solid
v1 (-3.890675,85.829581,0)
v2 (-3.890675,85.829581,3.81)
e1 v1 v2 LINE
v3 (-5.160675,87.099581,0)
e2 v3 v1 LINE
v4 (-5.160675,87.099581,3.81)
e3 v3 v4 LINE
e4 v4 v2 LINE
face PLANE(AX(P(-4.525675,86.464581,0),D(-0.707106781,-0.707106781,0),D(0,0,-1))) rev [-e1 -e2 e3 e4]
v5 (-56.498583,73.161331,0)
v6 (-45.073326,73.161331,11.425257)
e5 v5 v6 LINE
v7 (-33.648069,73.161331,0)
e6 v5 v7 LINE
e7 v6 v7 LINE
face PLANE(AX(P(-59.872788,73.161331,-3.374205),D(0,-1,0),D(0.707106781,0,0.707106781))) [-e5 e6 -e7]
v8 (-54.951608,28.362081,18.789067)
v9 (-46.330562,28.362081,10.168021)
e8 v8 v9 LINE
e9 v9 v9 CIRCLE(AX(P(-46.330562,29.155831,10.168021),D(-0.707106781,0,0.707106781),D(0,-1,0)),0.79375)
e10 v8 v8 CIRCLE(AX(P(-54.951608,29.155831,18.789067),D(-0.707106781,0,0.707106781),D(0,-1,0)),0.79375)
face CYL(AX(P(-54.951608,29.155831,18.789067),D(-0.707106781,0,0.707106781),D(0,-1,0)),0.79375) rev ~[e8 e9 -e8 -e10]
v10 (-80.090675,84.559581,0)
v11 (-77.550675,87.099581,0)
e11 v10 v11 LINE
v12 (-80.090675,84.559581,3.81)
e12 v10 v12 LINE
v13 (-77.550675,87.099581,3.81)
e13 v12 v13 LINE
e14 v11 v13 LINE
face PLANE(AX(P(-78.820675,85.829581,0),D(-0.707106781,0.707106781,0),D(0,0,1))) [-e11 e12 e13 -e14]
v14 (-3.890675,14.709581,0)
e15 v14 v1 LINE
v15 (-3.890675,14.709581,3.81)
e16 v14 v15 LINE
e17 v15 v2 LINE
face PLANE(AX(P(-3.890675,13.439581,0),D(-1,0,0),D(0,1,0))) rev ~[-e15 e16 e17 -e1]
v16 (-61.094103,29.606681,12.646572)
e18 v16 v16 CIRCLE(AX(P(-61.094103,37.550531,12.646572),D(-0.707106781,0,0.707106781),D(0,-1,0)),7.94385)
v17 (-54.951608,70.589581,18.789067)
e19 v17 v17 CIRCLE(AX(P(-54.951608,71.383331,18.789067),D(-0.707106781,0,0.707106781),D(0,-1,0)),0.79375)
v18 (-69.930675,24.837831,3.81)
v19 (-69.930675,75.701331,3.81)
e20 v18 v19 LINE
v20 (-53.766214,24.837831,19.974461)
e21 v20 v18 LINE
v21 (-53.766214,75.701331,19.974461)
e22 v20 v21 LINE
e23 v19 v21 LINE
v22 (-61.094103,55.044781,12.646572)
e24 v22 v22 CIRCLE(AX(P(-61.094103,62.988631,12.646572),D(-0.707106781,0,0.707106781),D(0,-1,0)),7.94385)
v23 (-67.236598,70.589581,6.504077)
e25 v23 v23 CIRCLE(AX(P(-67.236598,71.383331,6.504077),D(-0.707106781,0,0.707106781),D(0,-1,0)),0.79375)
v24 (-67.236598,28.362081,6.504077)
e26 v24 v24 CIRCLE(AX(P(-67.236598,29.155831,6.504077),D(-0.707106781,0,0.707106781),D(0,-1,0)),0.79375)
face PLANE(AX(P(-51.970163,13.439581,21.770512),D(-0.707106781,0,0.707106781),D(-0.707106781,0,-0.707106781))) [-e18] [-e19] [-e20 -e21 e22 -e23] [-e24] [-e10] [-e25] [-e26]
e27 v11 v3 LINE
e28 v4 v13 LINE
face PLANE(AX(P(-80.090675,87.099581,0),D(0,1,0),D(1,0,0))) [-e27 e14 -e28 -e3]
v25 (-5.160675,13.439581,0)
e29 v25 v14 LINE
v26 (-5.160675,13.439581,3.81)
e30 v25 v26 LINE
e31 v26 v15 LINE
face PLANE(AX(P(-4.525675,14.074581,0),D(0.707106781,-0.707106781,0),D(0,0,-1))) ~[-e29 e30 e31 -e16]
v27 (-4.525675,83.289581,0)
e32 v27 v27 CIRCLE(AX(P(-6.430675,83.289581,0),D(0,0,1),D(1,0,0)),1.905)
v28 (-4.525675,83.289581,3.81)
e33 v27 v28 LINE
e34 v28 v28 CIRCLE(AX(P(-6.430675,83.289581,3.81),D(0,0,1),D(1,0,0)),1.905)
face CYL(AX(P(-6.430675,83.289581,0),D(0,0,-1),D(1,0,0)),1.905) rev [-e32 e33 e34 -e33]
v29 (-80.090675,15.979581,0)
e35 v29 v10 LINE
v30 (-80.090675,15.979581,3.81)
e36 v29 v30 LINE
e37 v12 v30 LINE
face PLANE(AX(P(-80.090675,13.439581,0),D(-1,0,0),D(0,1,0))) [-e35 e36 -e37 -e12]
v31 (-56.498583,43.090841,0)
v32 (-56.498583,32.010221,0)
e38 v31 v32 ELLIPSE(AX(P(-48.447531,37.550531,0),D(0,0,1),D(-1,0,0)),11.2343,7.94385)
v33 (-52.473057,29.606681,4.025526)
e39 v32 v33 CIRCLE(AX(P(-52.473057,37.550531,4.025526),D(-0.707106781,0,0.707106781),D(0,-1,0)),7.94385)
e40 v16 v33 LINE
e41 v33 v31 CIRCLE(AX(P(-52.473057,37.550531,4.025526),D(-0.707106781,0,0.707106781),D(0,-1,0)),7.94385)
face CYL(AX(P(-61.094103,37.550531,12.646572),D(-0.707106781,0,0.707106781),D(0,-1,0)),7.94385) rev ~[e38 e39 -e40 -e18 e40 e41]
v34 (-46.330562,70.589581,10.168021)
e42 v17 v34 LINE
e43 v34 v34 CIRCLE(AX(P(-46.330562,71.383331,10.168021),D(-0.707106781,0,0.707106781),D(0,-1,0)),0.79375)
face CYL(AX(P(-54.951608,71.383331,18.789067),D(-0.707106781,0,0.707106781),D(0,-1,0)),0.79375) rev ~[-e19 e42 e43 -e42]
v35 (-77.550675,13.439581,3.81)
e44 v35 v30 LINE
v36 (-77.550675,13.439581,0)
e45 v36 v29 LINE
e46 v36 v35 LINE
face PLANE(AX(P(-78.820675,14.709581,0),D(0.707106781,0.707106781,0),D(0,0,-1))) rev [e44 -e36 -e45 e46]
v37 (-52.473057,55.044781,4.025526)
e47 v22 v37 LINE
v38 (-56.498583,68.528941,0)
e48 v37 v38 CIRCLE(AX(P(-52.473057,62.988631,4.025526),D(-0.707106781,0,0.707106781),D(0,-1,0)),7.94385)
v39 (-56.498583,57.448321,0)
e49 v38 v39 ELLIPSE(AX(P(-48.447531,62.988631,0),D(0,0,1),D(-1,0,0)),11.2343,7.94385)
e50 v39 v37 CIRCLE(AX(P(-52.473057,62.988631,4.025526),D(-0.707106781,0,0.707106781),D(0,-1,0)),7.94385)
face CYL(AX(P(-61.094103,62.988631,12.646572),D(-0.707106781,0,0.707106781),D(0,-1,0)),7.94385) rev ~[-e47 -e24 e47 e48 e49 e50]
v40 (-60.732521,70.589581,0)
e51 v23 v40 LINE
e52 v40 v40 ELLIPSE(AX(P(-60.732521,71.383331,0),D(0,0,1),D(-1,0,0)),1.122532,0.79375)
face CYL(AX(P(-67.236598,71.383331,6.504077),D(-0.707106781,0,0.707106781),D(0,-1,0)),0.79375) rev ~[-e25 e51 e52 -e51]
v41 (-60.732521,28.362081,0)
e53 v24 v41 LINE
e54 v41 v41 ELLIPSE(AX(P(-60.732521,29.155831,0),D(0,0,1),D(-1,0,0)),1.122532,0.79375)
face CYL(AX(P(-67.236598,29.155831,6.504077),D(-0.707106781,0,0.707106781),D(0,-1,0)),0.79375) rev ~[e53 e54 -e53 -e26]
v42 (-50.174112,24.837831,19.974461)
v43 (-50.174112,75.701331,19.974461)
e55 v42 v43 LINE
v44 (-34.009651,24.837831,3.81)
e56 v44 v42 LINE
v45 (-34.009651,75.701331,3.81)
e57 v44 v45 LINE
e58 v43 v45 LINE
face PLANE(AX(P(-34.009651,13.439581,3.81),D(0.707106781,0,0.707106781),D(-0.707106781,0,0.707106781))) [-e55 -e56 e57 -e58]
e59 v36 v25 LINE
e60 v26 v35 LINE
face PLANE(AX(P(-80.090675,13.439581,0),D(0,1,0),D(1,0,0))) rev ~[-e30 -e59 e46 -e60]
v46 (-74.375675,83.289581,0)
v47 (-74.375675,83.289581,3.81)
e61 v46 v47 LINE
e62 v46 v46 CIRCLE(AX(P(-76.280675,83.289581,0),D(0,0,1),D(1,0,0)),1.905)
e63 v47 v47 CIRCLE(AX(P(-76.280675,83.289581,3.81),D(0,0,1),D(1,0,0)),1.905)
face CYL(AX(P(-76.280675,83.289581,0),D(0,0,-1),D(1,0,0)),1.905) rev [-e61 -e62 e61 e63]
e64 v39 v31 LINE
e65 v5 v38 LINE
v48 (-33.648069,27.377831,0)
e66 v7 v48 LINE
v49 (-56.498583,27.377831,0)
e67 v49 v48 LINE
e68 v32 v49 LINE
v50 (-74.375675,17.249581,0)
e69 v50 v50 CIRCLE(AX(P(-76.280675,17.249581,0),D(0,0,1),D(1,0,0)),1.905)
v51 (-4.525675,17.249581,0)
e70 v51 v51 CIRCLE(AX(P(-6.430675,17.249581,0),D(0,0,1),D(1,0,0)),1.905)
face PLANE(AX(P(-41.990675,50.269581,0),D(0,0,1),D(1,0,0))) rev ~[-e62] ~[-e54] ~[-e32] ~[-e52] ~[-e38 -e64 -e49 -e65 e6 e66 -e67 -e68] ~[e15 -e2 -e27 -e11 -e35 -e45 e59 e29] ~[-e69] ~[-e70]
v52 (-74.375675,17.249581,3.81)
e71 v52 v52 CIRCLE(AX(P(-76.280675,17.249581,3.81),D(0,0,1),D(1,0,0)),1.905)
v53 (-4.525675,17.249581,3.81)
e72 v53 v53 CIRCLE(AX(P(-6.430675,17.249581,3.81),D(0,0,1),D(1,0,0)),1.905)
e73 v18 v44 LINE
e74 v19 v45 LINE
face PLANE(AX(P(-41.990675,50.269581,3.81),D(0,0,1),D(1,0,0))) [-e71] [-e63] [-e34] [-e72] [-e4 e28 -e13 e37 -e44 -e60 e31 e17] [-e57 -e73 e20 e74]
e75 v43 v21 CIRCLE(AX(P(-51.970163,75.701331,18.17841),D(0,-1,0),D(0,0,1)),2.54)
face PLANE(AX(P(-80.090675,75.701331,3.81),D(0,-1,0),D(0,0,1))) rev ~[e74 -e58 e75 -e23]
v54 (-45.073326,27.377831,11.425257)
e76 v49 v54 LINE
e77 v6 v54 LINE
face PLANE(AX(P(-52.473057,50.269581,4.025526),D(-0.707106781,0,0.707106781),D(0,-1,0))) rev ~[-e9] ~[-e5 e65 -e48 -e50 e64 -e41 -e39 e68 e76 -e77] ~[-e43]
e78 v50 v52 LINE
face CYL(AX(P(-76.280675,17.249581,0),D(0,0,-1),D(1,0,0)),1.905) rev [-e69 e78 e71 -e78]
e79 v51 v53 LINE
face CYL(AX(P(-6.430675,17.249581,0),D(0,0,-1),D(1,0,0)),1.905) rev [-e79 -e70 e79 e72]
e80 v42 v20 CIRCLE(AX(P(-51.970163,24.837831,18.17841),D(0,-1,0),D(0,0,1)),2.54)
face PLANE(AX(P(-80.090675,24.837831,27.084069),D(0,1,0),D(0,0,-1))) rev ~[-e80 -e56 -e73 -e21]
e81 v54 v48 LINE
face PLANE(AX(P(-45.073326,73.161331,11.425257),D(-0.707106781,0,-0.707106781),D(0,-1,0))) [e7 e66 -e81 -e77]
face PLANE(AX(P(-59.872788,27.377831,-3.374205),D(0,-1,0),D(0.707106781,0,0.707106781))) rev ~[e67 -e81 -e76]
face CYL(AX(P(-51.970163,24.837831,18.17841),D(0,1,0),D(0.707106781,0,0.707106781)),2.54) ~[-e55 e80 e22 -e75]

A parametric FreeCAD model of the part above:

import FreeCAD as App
import Part
import Sketcher
Q = App.Units.Quantity


def edges_at(feature, points):
    """Names of the edges that pass closest to the given points."""
    edges = feature.Shape.Edges
    near = lambda p: min(range(len(edges)), key=lambda i: edges[i].distToShape(Part.Vertex(*p))[0])
    return sorted({f"Edge{near(p) + 1}" for p in points})

doc = App.newDocument("Part")
params = doc.addObject("Spreadsheet::Sheet", "Params")
for row, (alias, value) in enumerate([
    ("sketch1_diameter", "0.15 in"),
    ("sketch1_width", "3 in"),
    ("sketch1_height", "2.9 in"),
    ("pad1_length", "0.15 in"),
    ("chamfer_size", "0.05 in"),
    ("chamfer2_size", "0.1 in"),
    ("sketch2_length", "1 in"),
    ("pad2_length", "2.9 in"),
    ("sketch3_diameter", "0.0625 in"),
    ("sketch4_height", "0.824 in"),
    ("pocket2_length", "1 in"),
    ("fillet_radius", "0.1 in"),
], start=1):
    params.set(f"A{row}", alias)
    params.set(f"B{row}", "=" + value)
    params.setAlias(f"B{row}", alias)

body = doc.addObject("PartDesign::Body", "Body")

# Sketch on XY plane
sketch1 = body.newObject("Sketcher::SketchObject", "Sketch")
sketch1.AttachmentSupport = (doc.getObject("XY_Plane"), [""])
sketch1.MapMode = "FlatFace"
sketch1.addGeometry([
    Part.LineSegment(App.Vector(-80.090675, 87.099581, 0), App.Vector(-80.090675, 13.439581, 0)),  # 0
    Part.LineSegment(App.Vector(-80.090675, 13.439581, 0), App.Vector(-3.890675, 13.439581, 0)),  # 1
    Part.LineSegment(App.Vector(-3.890675, 13.439581, 0), App.Vector(-3.890675, 87.099581, 0)),  # 2
    Part.LineSegment(App.Vector(-3.890675, 87.099581, 0), App.Vector(-80.090675, 87.099581, 0)),  # 3
    Part.Circle(App.Vector(-76.280675, 17.249581, 0), App.Vector(0, 0, 1), 1.905),  # 4
    Part.Circle(App.Vector(-6.430675, 17.249581, 0), App.Vector(0, 0, 1), 1.905),  # 5
    Part.Circle(App.Vector(-76.280675, 83.289581, 0), App.Vector(0, 0, 1), 1.905),  # 6
    Part.Circle(App.Vector(-6.430675, 83.289581, 0), App.Vector(0, 0, 1), 1.905),  # 7
], False)
sketch1.addConstraint([
    Sketcher.Constraint("Coincident", 0, 2, 1, 1),
    Sketcher.Constraint("Coincident", 1, 2, 2, 1),
    Sketcher.Constraint("Coincident", 2, 2, 3, 1),
    Sketcher.Constraint("Coincident", 3, 2, 0, 1),
    Sketcher.Constraint("Vertical", 0),
    Sketcher.Constraint("Horizontal", 1),
    Sketcher.Constraint("Vertical", 2),
    Sketcher.Constraint("Horizontal", 3),
    Sketcher.Constraint("Equal", 4, 5),
    Sketcher.Constraint("Equal", 5, 6),
    Sketcher.Constraint("Equal", 6, 7),
    Sketcher.Constraint("Horizontal", 4, 3, 5, 3),
    Sketcher.Constraint("Horizontal", 6, 3, 7, 3),
    Sketcher.Constraint("Vertical", 4, 3, 6, 3),
    Sketcher.Constraint("Vertical", 5, 3, 7, 3),
    Sketcher.Constraint("Diameter", 4, Q("0.15 in")),
    Sketcher.Constraint("DistanceX", 1, 1, 1, 2, Q("3 in")),
    Sketcher.Constraint("DistanceY", 0, 2, 0, 1, Q("2.9 in")),
    Sketcher.Constraint("DistanceY", 4, 3, 6, 3, Q("2.6 in")),
    Sketcher.Constraint("DistanceX", 0, 2, 5, 3, Q("2.9 in")),
    Sketcher.Constraint("DistanceX", 4, 3, 5, 3, Q("2.75 in")),
    Sketcher.Constraint("DistanceY", 0, 2, 4, 3, Q("0.15 in")),
    Sketcher.Constraint("DistanceY", -1, 1, 4, 3, Q("17.249581 mm")),
    Sketcher.Constraint("DistanceX", 4, 3, -1, 1, Q("76.280675 mm")),
])
sketch1.setExpression("Constraints[15]", "Params.sketch1_diameter")
sketch1.setExpression("Constraints[16]", "Params.sketch1_width")
sketch1.setExpression("Constraints[17]", "Params.sketch1_height")
pad1 = body.newObject("PartDesign::Pad", "Pad")
pad1.Profile = sketch1
pad1.setExpression("Length", "Params.pad1_length")
doc.recompute()

chamfer = body.newObject("PartDesign::Chamfer", "Chamfer")
chamfer.Base = (pad1, edges_at(pad1, [(-3.891, 13.44, 1.905), (-3.891, 87.1, 1.905)]))
chamfer.setExpression("Size", "Params.chamfer_size")
doc.recompute()

chamfer2 = body.newObject("PartDesign::Chamfer", "Chamfer001")
chamfer2.Base = (chamfer, edges_at(chamfer, [(-80.091, 13.44, 1.905), (-80.091, 87.1, 1.905)]))
chamfer2.setExpression("Size", "Params.chamfer2_size")

# Sketch on XZ plane
sketch2 = body.newObject("Sketcher::SketchObject", "Sketch001")
sketch2.AttachmentSupport = (doc.getObject("XZ_Plane"), [""])
sketch2.MapMode = "FlatFace"
sketch2.AttachmentOffset = App.Placement(App.Vector(0, 0, -13.439581), App.Rotation())
sketch2.addGeometry([
    Part.LineSegment(App.Vector(-51.970163, 21.770512, 0), App.Vector(-69.930675, 3.81, 0)),
    Part.LineSegment(App.Vector(-69.930675, 3.81, 0), App.Vector(-34.009651, 3.81, 0)),
    Part.LineSegment(App.Vector(-34.009651, 3.81, 0), App.Vector(-51.970163, 21.770512, 0)),
], False)
sketch2.addConstraint([
    Sketcher.Constraint("Coincident", 0, 2, 1, 1),
    Sketcher.Constraint("Coincident", 1, 2, 2, 1),
    Sketcher.Constraint("Coincident", 2, 2, 0, 1),
    Sketcher.Constraint("Horizontal", 1),
    Sketcher.Constraint("Perpendicular", 0, 2),
    Sketcher.Constraint("Equal", 0, 2),
    Sketcher.Constraint("Distance", 0, Q("1 in")),
    Sketcher.Constraint("DistanceY", -1, 1, 0, 2, Q("0.15 in")),
    Sketcher.Constraint("DistanceX", 1, 2, -1, 1, Q("34.009651 mm")),
])
sketch2.setExpression("Constraints[6]", "Params.sketch2_length")
pad2 = body.newObject("PartDesign::Pad", "Pad001")
pad2.Profile = sketch2
pad2.setExpression("Length", "Params.pad2_length")
pad2.Reversed = True

# Sketch on an angled plane
sketch3 = body.newObject("Sketcher::SketchObject", "Sketch002")
sketch3.Placement = App.Placement(App.Vector(-36.870338, 0, 36.870338), App.Rotation(App.Vector(0, -1, 0), App.Vector(0.707106781, 0, 0.707106781), App.Vector(-0.707106781, 0, 0.707106781), "ZXY"))
sketch3.addGeometry([
    Part.Circle(App.Vector(-62.988631, -34.257578, 0), App.Vector(0, 0, 1), 7.94385),  # 0
    Part.Circle(App.Vector(-37.550531, -34.257578, 0), App.Vector(0, 0, 1), 7.94385),  # 1
    Part.Circle(App.Vector(-29.155831, -25.570778, 0), App.Vector(0, 0, 1), 0.79375),  # 2
    Part.Circle(App.Vector(-29.155831, -42.944378, 0), App.Vector(0, 0, 1), 0.79375),  # 3
    Part.Circle(App.Vector(-71.383331, -42.944378, 0), App.Vector(0, 0, 1), 0.79375),  # 4
    Part.Circle(App.Vector(-71.383331, -25.570778, 0), App.Vector(0, 0, 1), 0.79375),  # 5
], False)
sketch3.addConstraint([
    Sketcher.Constraint("Equal", 0, 1),
    Sketcher.Constraint("Equal", 2, 3),
    Sketcher.Constraint("Equal", 3, 4),
    Sketcher.Constraint("Equal", 4, 5),
    Sketcher.Constraint("Horizontal", 0, 3, 1, 3),
    Sketcher.Constraint("Horizontal", 3, 3, 4, 3),
    Sketcher.Constraint("Horizontal", 2, 3, 5, 3),
    Sketcher.Constraint("Vertical", 2, 3, 3, 3),
    Sketcher.Constraint("Vertical", 4, 3, 5, 3),
    Sketcher.Constraint("Diameter", 2, Q("0.0625 in")),
    Sketcher.Constraint("Diameter", 0, Q("0.6255 in")),
    Sketcher.Constraint("DistanceY", 1, 3, 2, 3, Q("0.342 in")),
    Sketcher.Constraint("DistanceX", 0, 3, 2, 3, Q("1.332 in")),
    Sketcher.Constraint("DistanceY", 3, 3, 1, 3, Q("0.342 in")),
    Sketcher.Constraint("DistanceX", 4, 3, 1, 3, Q("1.332 in")),
    Sketcher.Constraint("DistanceX", 0, 3, 1, 3, Q("1.0015 in")),
    Sketcher.Constraint("DistanceX", 0, 3, -1, 1, Q("62.988631 mm")),
    Sketcher.Constraint("DistanceY", 0, 3, -1, 1, Q("34.257578 mm")),
])
sketch3.setExpression("Constraints[9]", "Params.sketch3_diameter")
pocket1 = body.newObject("PartDesign::Pocket", "Pocket")
pocket1.Profile = sketch3
pocket1.Type = "ThroughAll"

# Sketch on an angled plane
sketch4 = body.newObject("Sketcher::SketchObject", "Sketch003")
sketch4.Placement = App.Placement(App.Vector(-28.249292, 0, 28.249292), App.Rotation(App.Vector(0, -1, 0), App.Vector(0.707106781, 0, 0.707106781), App.Vector(-0.707106781, 0, 0.707106781), "ZXY"))
sketch4.addGeometry([
    Part.LineSegment(App.Vector(-73.161331, -23.792778, 0), App.Vector(-73.161331, -44.722378, 0)),
    Part.LineSegment(App.Vector(-73.161331, -44.722378, 0), App.Vector(-27.377831, -44.722378, 0)),
    Part.LineSegment(App.Vector(-27.377831, -44.722378, 0), App.Vector(-27.377831, -23.792778, 0)),
    Part.LineSegment(App.Vector(-27.377831, -23.792778, 0), App.Vector(-73.161331, -23.792778, 0)),
], False)
sketch4.addConstraint([
    Sketcher.Constraint("Coincident", 0, 2, 1, 1),
    Sketcher.Constraint("Coincident", 1, 2, 2, 1),
    Sketcher.Constraint("Coincident", 2, 2, 3, 1),
    Sketcher.Constraint("Coincident", 3, 2, 0, 1),
    Sketcher.Constraint("Vertical", 0),
    Sketcher.Constraint("Horizontal", 1),
    Sketcher.Constraint("Vertical", 2),
    Sketcher.Constraint("Horizontal", 3),
    Sketcher.Constraint("DistanceY", 0, 2, 0, 1, Q("0.824 in")),
    Sketcher.Constraint("DistanceX", 1, 1, 1, 2, Q("1.8025 in")),
    Sketcher.Constraint("DistanceX", 0, 2, -1, 1, Q("73.161331 mm")),
    Sketcher.Constraint("DistanceY", 0, 2, -1, 1, Q("44.722378 mm")),
])
sketch4.setExpression("Constraints[8]", "Params.sketch4_height")
pocket2 = body.newObject("PartDesign::Pocket", "Pocket001")
pocket2.Profile = sketch4
pocket2.setExpression("Length", "Params.pocket2_length")

# Sketch on YZ plane
sketch5 = body.newObject("Sketcher::SketchObject", "Sketch004")
sketch5.AttachmentSupport = (doc.getObject("YZ_Plane"), [""])
sketch5.MapMode = "FlatFace"
sketch5.AttachmentOffset = App.Placement(App.Vector(0, 0, -80.090675), App.Rotation())
sketch5.addGeometry([
    Part.LineSegment(App.Vector(75.701331, 3.81, 0), App.Vector(75.701331, 27.084069, 0)),  # 0
    Part.LineSegment(App.Vector(75.701331, 27.084069, 0), App.Vector(94.177686, 27.084069, 0)),  # 1
    Part.LineSegment(App.Vector(94.177686, 27.084069, 0), App.Vector(93.651839, 3.81, 0)),  # 2
    Part.LineSegment(App.Vector(93.651839, 3.81, 0), App.Vector(75.701331, 3.81, 0)),  # 3
    Part.LineSegment(App.Vector(24.837831, 27.084069, 0), App.Vector(24.837831, 3.81, 0)),  # 4
    Part.LineSegment(App.Vector(24.837831, 3.81, 0), App.Vector(6.887323, 3.81, 0)),  # 5
    Part.LineSegment(App.Vector(6.887323, 3.81, 0), App.Vector(6.361476, 27.084069, 0)),  # 6
    Part.LineSegment(App.Vector(6.361476, 27.084069, 0), App.Vector(24.837831, 27.084069, 0)),  # 7
], False)
sketch5.addConstraint([
    Sketcher.Constraint("Coincident", 0, 2, 1, 1),
    Sketcher.Constraint("Coincident", 1, 2, 2, 1),
    Sketcher.Constraint("Coincident", 2, 2, 3, 1),
    Sketcher.Constraint("Coincident", 3, 2, 0, 1),
    Sketcher.Constraint("Coincident", 4, 2, 5, 1),
    Sketcher.Constraint("Coincident", 5, 2, 6, 1),
    Sketcher.Constraint("Coincident", 6, 2, 7, 1),
    Sketcher.Constraint("Coincident", 7, 2, 4, 1),
    Sketcher.Constraint("Vertical", 0),
    Sketcher.Constraint("Horizontal", 1),
    Sketcher.Constraint("Horizontal", 3),
    Sketcher.Constraint("Vertical", 4),
    Sketcher.Constraint("Horizontal", 5),
    Sketcher.Constraint("Horizontal", 7),
    Sketcher.Constraint("Horizontal", 3, 2, 4, 2),
    Sketcher.Constraint("Horizontal", 1, 2, 6, 2),
    Sketcher.Constraint("Equal", 3, 5),
    Sketcher.Constraint("Equal", 1, 7),
    Sketcher.Constraint("DistanceY", -1, 1, 2, 2, Q("0.15 in")),
    Sketcher.Constraint("DistanceX", 4, 2, 3, 2, Q("2.0025 in")),
    Sketcher.Constraint("DistanceY", 0, 1, 0, 2, Q("23.274069 mm")),
    Sketcher.Constraint("Distance", 2, Q("23.280009 mm")),
    Sketcher.Constraint("DistanceX", 1, 1, 1, 2, Q("18.476355 mm")),
    Sketcher.Constraint("DistanceX", -1, 1, 0, 2, Q("75.701331 mm")),
])
pocket3 = body.newObject("PartDesign::Pocket", "Pocket002")
pocket3.Profile = sketch5
pocket3.Type = "ThroughAll"
pocket3.Reversed = True
doc.recompute()

fillet = body.newObject("PartDesign::Fillet", "Fillet")
fillet.Base = (pocket3, edges_at(pocket3, [(-51.97, 50.27, 21.771)]))
fillet.setExpression("Radius", "Params.fillet_radius")

doc.recompute()
